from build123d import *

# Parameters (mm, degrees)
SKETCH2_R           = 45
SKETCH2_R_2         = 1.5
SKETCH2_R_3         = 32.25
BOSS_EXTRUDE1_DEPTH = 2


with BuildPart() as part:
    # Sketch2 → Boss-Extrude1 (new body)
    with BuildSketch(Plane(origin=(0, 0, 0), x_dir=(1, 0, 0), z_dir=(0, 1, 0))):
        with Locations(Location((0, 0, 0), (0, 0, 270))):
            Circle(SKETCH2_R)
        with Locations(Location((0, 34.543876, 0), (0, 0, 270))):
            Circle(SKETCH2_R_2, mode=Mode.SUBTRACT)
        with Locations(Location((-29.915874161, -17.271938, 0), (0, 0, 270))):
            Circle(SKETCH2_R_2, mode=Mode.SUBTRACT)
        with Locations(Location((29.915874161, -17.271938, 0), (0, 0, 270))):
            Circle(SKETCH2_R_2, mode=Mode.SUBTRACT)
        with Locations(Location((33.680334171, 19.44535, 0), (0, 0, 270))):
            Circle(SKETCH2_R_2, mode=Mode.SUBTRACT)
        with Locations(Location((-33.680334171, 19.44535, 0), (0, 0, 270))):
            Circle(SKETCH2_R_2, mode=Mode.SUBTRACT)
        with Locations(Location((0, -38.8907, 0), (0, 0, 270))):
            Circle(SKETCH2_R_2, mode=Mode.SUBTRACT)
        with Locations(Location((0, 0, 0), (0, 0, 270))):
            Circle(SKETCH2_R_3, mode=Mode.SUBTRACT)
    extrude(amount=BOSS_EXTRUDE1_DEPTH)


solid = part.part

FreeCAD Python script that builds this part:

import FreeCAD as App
import Part
import Sketcher

V = App.Vector

doc = App.newDocument("Part")
body = doc.addObject("PartDesign::Body", "Body")

sketch1 = doc.addObject("Sketcher::SketchObject", "Sketch")
body.addObject(sketch1)
sketch1.AttachmentSupport = (doc.XZ_Plane, [""])
sketch1.MapMode = "FlatFace"
sketch1.addGeometry(Part.Circle(V(0, 0, 0), V(0, 0, 1), 45), False)
sketch1.addGeometry(Part.Circle(V(-33.7, -19.4, 0), V(0, 0, 1), 1.5), False)
sketch1.addGeometry(Part.Circle(V(0, -34.5, 0), V(0, 0, 1), 1.5), False)
sketch1.addGeometry(Part.Circle(V(-29.9, 17.3, 0), V(0, 0, 1), 1.5), False)
sketch1.addGeometry(Part.Circle(V(0, 0, 0), V(0, 0, 1), 32.2), False)
sketch1.addGeometry(Part.Circle(V(33.7, -19.4, 0), V(0, 0, 1), 1.5), False)
sketch1.addGeometry(Part.Circle(V(0, 38.9, 0), V(0, 0, 1), 1.5), False)
sketch1.addGeometry(Part.Circle(V(29.9, 17.3, 0), V(0, 0, 1), 1.5), False)
sketch1.addConstraint(Sketcher.Constraint("Coincident", 0, 3, -1, 1))
sketch1.addConstraint(Sketcher.Constraint("Coincident", 4, 3, -1, 1))
sketch1.addConstraint(Sketcher.Constraint("Equal", 1, 2))
sketch1.addConstraint(Sketcher.Constraint("Equal", 2, 3))
sketch1.addConstraint(Sketcher.Constraint("Equal", 3, 5))
sketch1.addConstraint(Sketcher.Constraint("Equal", 5, 6))
sketch1.addConstraint(Sketcher.Constraint("Equal", 6, 7))
sketch1.addConstraint(Sketcher.Constraint("Symmetric", 1, 3, 5, 3, -2))
sketch1.addConstraint(Sketcher.Constraint("Symmetric", 3, 3, 7, 3, -2))
sketch1.addConstraint(Sketcher.Constraint("PointOnObject", 2, 3, -2))
sketch1.addConstraint(Sketcher.Constraint("PointOnObject", 6, 3, -2))
sketch1.addConstraint(Sketcher.Constraint("Diameter", 0, 90.0))
sketch1.addConstraint(Sketcher.Constraint("Diameter", 1, 3.0))
sketch1.addConstraint(Sketcher.Constraint("Diameter", 4, 64.5))
sketch1.addConstraint(Sketcher.Constraint("DistanceY", -1, 1, 6, 3, 38.8907))
sketch1.addConstraint(Sketcher.Constraint("DistanceY", 1, 3, -1, 1, 19.44535))
sketch1.addConstraint(Sketcher.Constraint("DistanceX", 1, 3, 3, 3, 3.76446))
sketch1.addConstraint(Sketcher.Constraint("DistanceX", 1, 3, 5, 3, 67.360668))
sketch1.addConstraint(Sketcher.Constraint("DistanceY", 2, 3, -1, 1, 34.543876))
sketch1.addConstraint(Sketcher.Constraint("DistanceY", -1, 1, 3, 3, 17.271938))
pad1 = doc.addObject("PartDesign::Pad", "Pad")
body.addObject(pad1)
pad1.Profile = sketch1
pad1.Length = 2
pad1.Reversed = True

doc.recompute()
